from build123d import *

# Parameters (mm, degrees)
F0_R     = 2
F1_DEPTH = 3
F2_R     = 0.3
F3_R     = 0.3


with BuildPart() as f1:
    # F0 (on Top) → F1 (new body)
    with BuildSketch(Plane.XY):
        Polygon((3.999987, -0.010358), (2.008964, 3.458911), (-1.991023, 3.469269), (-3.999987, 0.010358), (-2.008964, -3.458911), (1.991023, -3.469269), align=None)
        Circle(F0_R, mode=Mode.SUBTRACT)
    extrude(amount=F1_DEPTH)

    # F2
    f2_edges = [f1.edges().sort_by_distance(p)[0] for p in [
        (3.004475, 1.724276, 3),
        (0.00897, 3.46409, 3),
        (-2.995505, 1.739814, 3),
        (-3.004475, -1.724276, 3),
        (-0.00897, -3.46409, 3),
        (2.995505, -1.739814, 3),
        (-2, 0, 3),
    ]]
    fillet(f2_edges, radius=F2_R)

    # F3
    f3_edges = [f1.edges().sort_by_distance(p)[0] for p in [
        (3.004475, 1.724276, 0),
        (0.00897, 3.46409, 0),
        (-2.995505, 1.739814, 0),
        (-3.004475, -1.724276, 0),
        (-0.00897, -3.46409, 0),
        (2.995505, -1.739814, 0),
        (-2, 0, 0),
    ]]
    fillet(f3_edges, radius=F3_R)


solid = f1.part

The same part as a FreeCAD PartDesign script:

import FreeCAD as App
import Part
import Sketcher
from FreeCAD import Vector


def edges_at(feature, points):
    """Names of the edges that pass closest to the given points."""
    edges = feature.Shape.Edges
    near = lambda p: min(range(len(edges)), key=lambda i: edges[i].distToShape(Part.Vertex(*p))[0])
    return sorted({f"Edge{near(p) + 1}" for p in points})

doc = App.newDocument("Part")
body = doc.addObject("PartDesign::Body", "Body")

sketch1 = doc.addObject("Sketcher::SketchObject", "Sketch")
body.addObject(sketch1)
sketch1.AttachmentSupport = (doc.XY_Plane, [""])
sketch1.MapMode = "FlatFace"
sketch1.addGeometry(Part.LineSegment(Vector(4, 0, 0), Vector(2, 3.5, 0)), False)
sketch1.addGeometry(Part.LineSegment(Vector(2, 3.5, 0), Vector(-2, 3.5, 0)), False)
sketch1.addGeometry(Part.LineSegment(Vector(-2, 3.5, 0), Vector(-4, 0, 0)), False)
sketch1.addGeometry(Part.LineSegment(Vector(-4, 0, 0), Vector(-2, -3.5, 0)), False)
sketch1.addGeometry(Part.LineSegment(Vector(-2, -3.5, 0), Vector(2, -3.5, 0)), False)
sketch1.addGeometry(Part.LineSegment(Vector(2, -3.5, 0), Vector(4, 0, 0)), False)
sketch1.addGeometry(Part.Circle(Vector(0, 0, 0), Vector(0, 0, 1), 2), False)
sketch1.addConstraint(Sketcher.Constraint("Coincident", 0, 2, 1, 1))
sketch1.addConstraint(Sketcher.Constraint("Coincident", 1, 2, 2, 1))
sketch1.addConstraint(Sketcher.Constraint("Coincident", 2, 2, 3, 1))
sketch1.addConstraint(Sketcher.Constraint("Coincident", 3, 2, 4, 1))
sketch1.addConstraint(Sketcher.Constraint("Coincident", 4, 2, 5, 1))
sketch1.addConstraint(Sketcher.Constraint("Coincident", 5, 2, 0, 1))
sketch1.addConstraint(Sketcher.Constraint("Coincident", 6, 3, -1, 1))
sketch1.addConstraint(Sketcher.Constraint("Symmetric", 0, 2, 3, 2, -1, 1))
sketch1.addConstraint(Sketcher.Constraint("Symmetric", 1, 2, 4, 2, -1, 1))
sketch1.addConstraint(Sketcher.Constraint("Symmetric", 2, 2, 5, 2, -1, 1))
sketch1.addConstraint(Sketcher.Constraint("Equal", 0, 1))
sketch1.addConstraint(Sketcher.Constraint("Equal", 1, 2))
sketch1.addConstraint(Sketcher.Constraint("Diameter", 6, 4.0))
sketch1.addConstraint(Sketcher.Constraint("Distance", 0, 4.0))
sketch1.addConstraint(Sketcher.Constraint("DistanceY", -1, 1, 0, 2, 3.458911))
sketch1.addConstraint(Sketcher.Constraint("DistanceY", -1, 1, 1, 2, 3.469269))
sketch1.addConstraint(Sketcher.Constraint("DistanceY", 2, 2, 1, 2, 3.458911))
pad1 = doc.addObject("PartDesign::Pad", "Pad")
body.addObject(pad1)
pad1.Profile = sketch1
pad1.Length = 3
doc.recompute()

fillet = doc.addObject("PartDesign::Fillet", "Fillet")
body.addObject(fillet)
fillet.Base = (pad1, edges_at(pad1, [
    (3.004, 1.724, 3),
    (0.009, 3.464, 3),
    (-2.996, 1.74, 3),
    (-3.004, -1.724, 3),
    (-0.009, -3.464, 3),
    (2.996, -1.74, 3),
    (-2, 0, 3),
]))
fillet.Radius = 0.3
doc.recompute()

fillet2 = doc.addObject("PartDesign::Fillet", "Fillet001")
body.addObject(fillet2)
fillet2.Base = (fillet, edges_at(fillet, [
    (3.004, 1.724, 0),
    (0.009, 3.464, 0),
    (-2.996, 1.74, 0),
    (-3.004, -1.724, 0),
    (-0.009, -3.464, 0),
    (2.996, -1.74, 0),
    (-2, 0, 0),
]))
fillet2.Radius = 0.3

doc.recompute()
